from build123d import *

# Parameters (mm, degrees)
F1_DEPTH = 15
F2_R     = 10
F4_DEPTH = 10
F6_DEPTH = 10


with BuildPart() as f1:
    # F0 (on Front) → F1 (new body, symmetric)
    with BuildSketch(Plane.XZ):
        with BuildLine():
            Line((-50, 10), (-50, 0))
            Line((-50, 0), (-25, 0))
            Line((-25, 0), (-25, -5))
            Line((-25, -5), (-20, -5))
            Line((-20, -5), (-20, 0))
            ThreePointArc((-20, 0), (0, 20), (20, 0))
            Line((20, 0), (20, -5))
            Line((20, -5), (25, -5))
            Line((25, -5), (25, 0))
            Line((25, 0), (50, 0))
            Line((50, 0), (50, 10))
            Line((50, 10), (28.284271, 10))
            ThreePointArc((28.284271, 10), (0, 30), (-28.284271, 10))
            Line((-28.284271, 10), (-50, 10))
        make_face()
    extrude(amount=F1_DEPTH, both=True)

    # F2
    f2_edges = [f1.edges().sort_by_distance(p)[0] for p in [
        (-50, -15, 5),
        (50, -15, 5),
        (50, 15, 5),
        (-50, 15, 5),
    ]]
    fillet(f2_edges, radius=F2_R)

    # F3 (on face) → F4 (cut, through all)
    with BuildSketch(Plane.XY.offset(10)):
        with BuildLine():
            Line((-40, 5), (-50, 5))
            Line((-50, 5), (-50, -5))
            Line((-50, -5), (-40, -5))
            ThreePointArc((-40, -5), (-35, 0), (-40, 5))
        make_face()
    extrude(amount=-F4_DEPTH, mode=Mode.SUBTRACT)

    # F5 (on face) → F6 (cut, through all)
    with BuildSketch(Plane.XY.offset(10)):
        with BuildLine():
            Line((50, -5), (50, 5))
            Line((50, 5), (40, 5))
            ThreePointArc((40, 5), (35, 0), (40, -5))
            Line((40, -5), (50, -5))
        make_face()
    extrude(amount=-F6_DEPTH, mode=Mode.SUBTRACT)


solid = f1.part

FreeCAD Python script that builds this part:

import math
import FreeCAD as App
import Part
import Sketcher

V = App.Vector
Q = App.Units.Quantity


def edges_at(feature, points):
    """Names of the edges that pass closest to the given points."""
    edges = feature.Shape.Edges
    near = lambda p: min(range(len(edges)), key=lambda i: edges[i].distToShape(Part.Vertex(*p))[0])
    return sorted({f"Edge{near(p) + 1}" for p in points})

doc = App.newDocument("Part")
body = doc.addObject("PartDesign::Body", "Body")

# Sketch on XZ plane
sketch1 = body.newObject("Sketcher::SketchObject", "Sketch")
sketch1.AttachmentSupport = (doc.getObject("XZ_Plane"), [""])
sketch1.MapMode = "FlatFace"
sketch1.addGeometry([
    Part.LineSegment(V(-50, 10, 0), V(-50, 0, 0)),  # 0
    Part.LineSegment(V(-50, 0, 0), V(-25, 0, 0)),  # 1
    Part.LineSegment(V(-25, 0, 0), V(-25, -5, 0)),  # 2
    Part.LineSegment(V(-25, -5, 0), V(-20, -5, 0)),  # 3
    Part.LineSegment(V(-20, -5, 0), V(-20, 0, 0)),  # 4
    Part.ArcOfCircle(Part.Circle(V(0, 0, 0), V(0, 0, 1), 20), math.radians(0), math.radians(180)),  # 5
    Part.LineSegment(V(20, 0, 0), V(20, -5, 0)),  # 6
    Part.LineSegment(V(20, -5, 0), V(25, -5, 0)),  # 7
    Part.LineSegment(V(25, -5, 0), V(25, 0, 0)),  # 8
    Part.LineSegment(V(25, 0, 0), V(50, 0, 0)),  # 9
    Part.LineSegment(V(50, 0, 0), V(50, 10, 0)),  # 10
    Part.LineSegment(V(50, 10, 0), V(28, 10, 0)),  # 11
    Part.ArcOfCircle(Part.Circle(V(0, 0, 0), V(0, 0, 1), 30), math.radians(19), math.radians(161)),  # 12
    Part.LineSegment(V(-28, 10, 0), V(-50, 10, 0)),  # 13
], False)
sketch1.addConstraint([
    Sketcher.Constraint("Coincident", 0, 2, 1, 1),
    Sketcher.Constraint("Coincident", 1, 2, 2, 1),
    Sketcher.Constraint("Coincident", 2, 2, 3, 1),
    Sketcher.Constraint("Coincident", 3, 2, 4, 1),
    Sketcher.Constraint("Tangent", 4, 2, 5, 2),
    Sketcher.Constraint("Tangent", 5, 1, 6, 1),
    Sketcher.Constraint("Coincident", 6, 2, 7, 1),
    Sketcher.Constraint("Coincident", 7, 2, 8, 1),
    Sketcher.Constraint("Coincident", 8, 2, 9, 1),
    Sketcher.Constraint("Coincident", 9, 2, 10, 1),
    Sketcher.Constraint("Coincident", 10, 2, 11, 1),
    Sketcher.Constraint("Coincident", 11, 2, 12, 1),
    Sketcher.Constraint("Coincident", 12, 2, 13, 1),
    Sketcher.Constraint("Coincident", 13, 2, 0, 1),
    Sketcher.Constraint("Vertical", 0),
    Sketcher.Constraint("Horizontal", 1),
    Sketcher.Constraint("Vertical", 2),
    Sketcher.Constraint("Horizontal", 3),
    Sketcher.Constraint("Vertical", 4),
    Sketcher.Constraint("Vertical", 6),
    Sketcher.Constraint("Horizontal", 7),
    Sketcher.Constraint("Vertical", 8),
    Sketcher.Constraint("Horizontal", 9),
    Sketcher.Constraint("Vertical", 10),
    Sketcher.Constraint("Horizontal", 11),
    Sketcher.Constraint("Horizontal", 13),
    Sketcher.Constraint("Coincident", 5, 3, -1, 1),
    Sketcher.Constraint("Coincident", 12, 3, -1, 1),
    Sketcher.Constraint("Symmetric", 1, 2, 8, 2, -1, 1),
    Sketcher.Constraint("Symmetric", 0, 2, 9, 2, -2),
    Sketcher.Constraint("Horizontal", 3, 2, 6, 2),
    Sketcher.Constraint("Horizontal", 11, 2, 12, 2),
    Sketcher.Constraint("Equal", 7, 2),
    Sketcher.Constraint("Radius", 5, Q("20 mm")),
    Sketcher.Constraint("Radius", 12, Q("30 mm")),
    Sketcher.Constraint("DistanceX", 1, 1, 1, 2, Q("25 mm")),
    Sketcher.Constraint("DistanceX", 3, 1, 3, 2, Q("5 mm")),
    Sketcher.Constraint("DistanceY", 0, 2, 0, 1, Q("10 mm")),
])
pad1 = body.newObject("PartDesign::Pad", "Pad")
pad1.Profile = sketch1
pad1.Length = 30
pad1.Midplane = True
doc.recompute()

fillet = body.newObject("PartDesign::Fillet", "Fillet")
fillet.Base = (pad1, edges_at(pad1, [
    (-50, -15, 5),
    (50, -15, 5),
    (50, 15, 5),
    (-50, 15, 5),
]))
fillet.Radius = 10

# Sketch on XY plane
sketch2 = body.newObject("Sketcher::SketchObject", "Sketch001")
sketch2.AttachmentSupport = (doc.getObject("XY_Plane"), [""])
sketch2.MapMode = "FlatFace"
sketch2.AttachmentOffset = App.Placement(V(0, 0, 10), App.Rotation())
sketch2.addGeometry([
    Part.LineSegment(V(-40, 5, 0), V(-50, 5, 0)),
    Part.LineSegment(V(-50, 5, 0), V(-50, -5, 0)),
    Part.LineSegment(V(-50, -5, 0), V(-40, -5, 0)),
    Part.ArcOfCircle(Part.Circle(V(-40, 0, 0), V(0, 0, 1), 5), math.radians(-90), math.radians(90)),
], False)
sketch2.addConstraint([
    Sketcher.Constraint("Coincident", 0, 2, 1, 1),
    Sketcher.Constraint("Coincident", 1, 2, 2, 1),
    Sketcher.Constraint("Tangent", 2, 2, 3, 1),
    Sketcher.Constraint("Tangent", 3, 2, 0, 1),
    Sketcher.Constraint("Horizontal", 0),
    Sketcher.Constraint("Vertical", 1),
    Sketcher.Constraint("Horizontal", 2),
    Sketcher.Constraint("PointOnObject", 3, 3, -1),
    Sketcher.Constraint("Equal", 2, 1),
    Sketcher.Constraint("Radius", 3, Q("5 mm")),
    Sketcher.Constraint("DistanceX", 3, 3, -1, 1, Q("40 mm")),
])
pocket1 = body.newObject("PartDesign::Pocket", "Pocket")
pocket1.Profile = sketch2
pocket1.Type = "ThroughAll"

# Sketch on XY plane
sketch3 = body.newObject("Sketcher::SketchObject", "Sketch002")
sketch3.AttachmentSupport = (doc.getObject("XY_Plane"), [""])
sketch3.MapMode = "FlatFace"
sketch3.AttachmentOffset = App.Placement(V(0, 0, 10), App.Rotation())
sketch3.addGeometry([
    Part.LineSegment(V(50, -5, 0), V(50, 5, 0)),
    Part.LineSegment(V(50, 5, 0), V(40, 5, 0)),
    Part.ArcOfCircle(Part.Circle(V(40, 0, 0), V(0, 0, 1), 5), math.radians(90), math.radians(270)),
    Part.LineSegment(V(40, -5, 0), V(50, -5, 0)),
], False)
sketch3.addConstraint([
    Sketcher.Constraint("Coincident", 0, 2, 1, 1),
    Sketcher.Constraint("Tangent", 1, 2, 2, 1),
    Sketcher.Constraint("Tangent", 2, 2, 3, 1),
    Sketcher.Constraint("Coincident", 3, 2, 0, 1),
    Sketcher.Constraint("Vertical", 0),
    Sketcher.Constraint("Horizontal", 1),
    Sketcher.Constraint("Horizontal", 3),
    Sketcher.Constraint("PointOnObject", 2, 3, -1),
    Sketcher.Constraint("Equal", 3, 0),
    Sketcher.Constraint("Radius", 2, Q("5 mm")),
    Sketcher.Constraint("DistanceX", -1, 1, 2, 3, Q("40 mm")),
])
pocket2 = body.newObject("PartDesign::Pocket", "Pocket001")
pocket2.Profile = sketch3
pocket2.Type = "ThroughAll"

doc.recompute()
